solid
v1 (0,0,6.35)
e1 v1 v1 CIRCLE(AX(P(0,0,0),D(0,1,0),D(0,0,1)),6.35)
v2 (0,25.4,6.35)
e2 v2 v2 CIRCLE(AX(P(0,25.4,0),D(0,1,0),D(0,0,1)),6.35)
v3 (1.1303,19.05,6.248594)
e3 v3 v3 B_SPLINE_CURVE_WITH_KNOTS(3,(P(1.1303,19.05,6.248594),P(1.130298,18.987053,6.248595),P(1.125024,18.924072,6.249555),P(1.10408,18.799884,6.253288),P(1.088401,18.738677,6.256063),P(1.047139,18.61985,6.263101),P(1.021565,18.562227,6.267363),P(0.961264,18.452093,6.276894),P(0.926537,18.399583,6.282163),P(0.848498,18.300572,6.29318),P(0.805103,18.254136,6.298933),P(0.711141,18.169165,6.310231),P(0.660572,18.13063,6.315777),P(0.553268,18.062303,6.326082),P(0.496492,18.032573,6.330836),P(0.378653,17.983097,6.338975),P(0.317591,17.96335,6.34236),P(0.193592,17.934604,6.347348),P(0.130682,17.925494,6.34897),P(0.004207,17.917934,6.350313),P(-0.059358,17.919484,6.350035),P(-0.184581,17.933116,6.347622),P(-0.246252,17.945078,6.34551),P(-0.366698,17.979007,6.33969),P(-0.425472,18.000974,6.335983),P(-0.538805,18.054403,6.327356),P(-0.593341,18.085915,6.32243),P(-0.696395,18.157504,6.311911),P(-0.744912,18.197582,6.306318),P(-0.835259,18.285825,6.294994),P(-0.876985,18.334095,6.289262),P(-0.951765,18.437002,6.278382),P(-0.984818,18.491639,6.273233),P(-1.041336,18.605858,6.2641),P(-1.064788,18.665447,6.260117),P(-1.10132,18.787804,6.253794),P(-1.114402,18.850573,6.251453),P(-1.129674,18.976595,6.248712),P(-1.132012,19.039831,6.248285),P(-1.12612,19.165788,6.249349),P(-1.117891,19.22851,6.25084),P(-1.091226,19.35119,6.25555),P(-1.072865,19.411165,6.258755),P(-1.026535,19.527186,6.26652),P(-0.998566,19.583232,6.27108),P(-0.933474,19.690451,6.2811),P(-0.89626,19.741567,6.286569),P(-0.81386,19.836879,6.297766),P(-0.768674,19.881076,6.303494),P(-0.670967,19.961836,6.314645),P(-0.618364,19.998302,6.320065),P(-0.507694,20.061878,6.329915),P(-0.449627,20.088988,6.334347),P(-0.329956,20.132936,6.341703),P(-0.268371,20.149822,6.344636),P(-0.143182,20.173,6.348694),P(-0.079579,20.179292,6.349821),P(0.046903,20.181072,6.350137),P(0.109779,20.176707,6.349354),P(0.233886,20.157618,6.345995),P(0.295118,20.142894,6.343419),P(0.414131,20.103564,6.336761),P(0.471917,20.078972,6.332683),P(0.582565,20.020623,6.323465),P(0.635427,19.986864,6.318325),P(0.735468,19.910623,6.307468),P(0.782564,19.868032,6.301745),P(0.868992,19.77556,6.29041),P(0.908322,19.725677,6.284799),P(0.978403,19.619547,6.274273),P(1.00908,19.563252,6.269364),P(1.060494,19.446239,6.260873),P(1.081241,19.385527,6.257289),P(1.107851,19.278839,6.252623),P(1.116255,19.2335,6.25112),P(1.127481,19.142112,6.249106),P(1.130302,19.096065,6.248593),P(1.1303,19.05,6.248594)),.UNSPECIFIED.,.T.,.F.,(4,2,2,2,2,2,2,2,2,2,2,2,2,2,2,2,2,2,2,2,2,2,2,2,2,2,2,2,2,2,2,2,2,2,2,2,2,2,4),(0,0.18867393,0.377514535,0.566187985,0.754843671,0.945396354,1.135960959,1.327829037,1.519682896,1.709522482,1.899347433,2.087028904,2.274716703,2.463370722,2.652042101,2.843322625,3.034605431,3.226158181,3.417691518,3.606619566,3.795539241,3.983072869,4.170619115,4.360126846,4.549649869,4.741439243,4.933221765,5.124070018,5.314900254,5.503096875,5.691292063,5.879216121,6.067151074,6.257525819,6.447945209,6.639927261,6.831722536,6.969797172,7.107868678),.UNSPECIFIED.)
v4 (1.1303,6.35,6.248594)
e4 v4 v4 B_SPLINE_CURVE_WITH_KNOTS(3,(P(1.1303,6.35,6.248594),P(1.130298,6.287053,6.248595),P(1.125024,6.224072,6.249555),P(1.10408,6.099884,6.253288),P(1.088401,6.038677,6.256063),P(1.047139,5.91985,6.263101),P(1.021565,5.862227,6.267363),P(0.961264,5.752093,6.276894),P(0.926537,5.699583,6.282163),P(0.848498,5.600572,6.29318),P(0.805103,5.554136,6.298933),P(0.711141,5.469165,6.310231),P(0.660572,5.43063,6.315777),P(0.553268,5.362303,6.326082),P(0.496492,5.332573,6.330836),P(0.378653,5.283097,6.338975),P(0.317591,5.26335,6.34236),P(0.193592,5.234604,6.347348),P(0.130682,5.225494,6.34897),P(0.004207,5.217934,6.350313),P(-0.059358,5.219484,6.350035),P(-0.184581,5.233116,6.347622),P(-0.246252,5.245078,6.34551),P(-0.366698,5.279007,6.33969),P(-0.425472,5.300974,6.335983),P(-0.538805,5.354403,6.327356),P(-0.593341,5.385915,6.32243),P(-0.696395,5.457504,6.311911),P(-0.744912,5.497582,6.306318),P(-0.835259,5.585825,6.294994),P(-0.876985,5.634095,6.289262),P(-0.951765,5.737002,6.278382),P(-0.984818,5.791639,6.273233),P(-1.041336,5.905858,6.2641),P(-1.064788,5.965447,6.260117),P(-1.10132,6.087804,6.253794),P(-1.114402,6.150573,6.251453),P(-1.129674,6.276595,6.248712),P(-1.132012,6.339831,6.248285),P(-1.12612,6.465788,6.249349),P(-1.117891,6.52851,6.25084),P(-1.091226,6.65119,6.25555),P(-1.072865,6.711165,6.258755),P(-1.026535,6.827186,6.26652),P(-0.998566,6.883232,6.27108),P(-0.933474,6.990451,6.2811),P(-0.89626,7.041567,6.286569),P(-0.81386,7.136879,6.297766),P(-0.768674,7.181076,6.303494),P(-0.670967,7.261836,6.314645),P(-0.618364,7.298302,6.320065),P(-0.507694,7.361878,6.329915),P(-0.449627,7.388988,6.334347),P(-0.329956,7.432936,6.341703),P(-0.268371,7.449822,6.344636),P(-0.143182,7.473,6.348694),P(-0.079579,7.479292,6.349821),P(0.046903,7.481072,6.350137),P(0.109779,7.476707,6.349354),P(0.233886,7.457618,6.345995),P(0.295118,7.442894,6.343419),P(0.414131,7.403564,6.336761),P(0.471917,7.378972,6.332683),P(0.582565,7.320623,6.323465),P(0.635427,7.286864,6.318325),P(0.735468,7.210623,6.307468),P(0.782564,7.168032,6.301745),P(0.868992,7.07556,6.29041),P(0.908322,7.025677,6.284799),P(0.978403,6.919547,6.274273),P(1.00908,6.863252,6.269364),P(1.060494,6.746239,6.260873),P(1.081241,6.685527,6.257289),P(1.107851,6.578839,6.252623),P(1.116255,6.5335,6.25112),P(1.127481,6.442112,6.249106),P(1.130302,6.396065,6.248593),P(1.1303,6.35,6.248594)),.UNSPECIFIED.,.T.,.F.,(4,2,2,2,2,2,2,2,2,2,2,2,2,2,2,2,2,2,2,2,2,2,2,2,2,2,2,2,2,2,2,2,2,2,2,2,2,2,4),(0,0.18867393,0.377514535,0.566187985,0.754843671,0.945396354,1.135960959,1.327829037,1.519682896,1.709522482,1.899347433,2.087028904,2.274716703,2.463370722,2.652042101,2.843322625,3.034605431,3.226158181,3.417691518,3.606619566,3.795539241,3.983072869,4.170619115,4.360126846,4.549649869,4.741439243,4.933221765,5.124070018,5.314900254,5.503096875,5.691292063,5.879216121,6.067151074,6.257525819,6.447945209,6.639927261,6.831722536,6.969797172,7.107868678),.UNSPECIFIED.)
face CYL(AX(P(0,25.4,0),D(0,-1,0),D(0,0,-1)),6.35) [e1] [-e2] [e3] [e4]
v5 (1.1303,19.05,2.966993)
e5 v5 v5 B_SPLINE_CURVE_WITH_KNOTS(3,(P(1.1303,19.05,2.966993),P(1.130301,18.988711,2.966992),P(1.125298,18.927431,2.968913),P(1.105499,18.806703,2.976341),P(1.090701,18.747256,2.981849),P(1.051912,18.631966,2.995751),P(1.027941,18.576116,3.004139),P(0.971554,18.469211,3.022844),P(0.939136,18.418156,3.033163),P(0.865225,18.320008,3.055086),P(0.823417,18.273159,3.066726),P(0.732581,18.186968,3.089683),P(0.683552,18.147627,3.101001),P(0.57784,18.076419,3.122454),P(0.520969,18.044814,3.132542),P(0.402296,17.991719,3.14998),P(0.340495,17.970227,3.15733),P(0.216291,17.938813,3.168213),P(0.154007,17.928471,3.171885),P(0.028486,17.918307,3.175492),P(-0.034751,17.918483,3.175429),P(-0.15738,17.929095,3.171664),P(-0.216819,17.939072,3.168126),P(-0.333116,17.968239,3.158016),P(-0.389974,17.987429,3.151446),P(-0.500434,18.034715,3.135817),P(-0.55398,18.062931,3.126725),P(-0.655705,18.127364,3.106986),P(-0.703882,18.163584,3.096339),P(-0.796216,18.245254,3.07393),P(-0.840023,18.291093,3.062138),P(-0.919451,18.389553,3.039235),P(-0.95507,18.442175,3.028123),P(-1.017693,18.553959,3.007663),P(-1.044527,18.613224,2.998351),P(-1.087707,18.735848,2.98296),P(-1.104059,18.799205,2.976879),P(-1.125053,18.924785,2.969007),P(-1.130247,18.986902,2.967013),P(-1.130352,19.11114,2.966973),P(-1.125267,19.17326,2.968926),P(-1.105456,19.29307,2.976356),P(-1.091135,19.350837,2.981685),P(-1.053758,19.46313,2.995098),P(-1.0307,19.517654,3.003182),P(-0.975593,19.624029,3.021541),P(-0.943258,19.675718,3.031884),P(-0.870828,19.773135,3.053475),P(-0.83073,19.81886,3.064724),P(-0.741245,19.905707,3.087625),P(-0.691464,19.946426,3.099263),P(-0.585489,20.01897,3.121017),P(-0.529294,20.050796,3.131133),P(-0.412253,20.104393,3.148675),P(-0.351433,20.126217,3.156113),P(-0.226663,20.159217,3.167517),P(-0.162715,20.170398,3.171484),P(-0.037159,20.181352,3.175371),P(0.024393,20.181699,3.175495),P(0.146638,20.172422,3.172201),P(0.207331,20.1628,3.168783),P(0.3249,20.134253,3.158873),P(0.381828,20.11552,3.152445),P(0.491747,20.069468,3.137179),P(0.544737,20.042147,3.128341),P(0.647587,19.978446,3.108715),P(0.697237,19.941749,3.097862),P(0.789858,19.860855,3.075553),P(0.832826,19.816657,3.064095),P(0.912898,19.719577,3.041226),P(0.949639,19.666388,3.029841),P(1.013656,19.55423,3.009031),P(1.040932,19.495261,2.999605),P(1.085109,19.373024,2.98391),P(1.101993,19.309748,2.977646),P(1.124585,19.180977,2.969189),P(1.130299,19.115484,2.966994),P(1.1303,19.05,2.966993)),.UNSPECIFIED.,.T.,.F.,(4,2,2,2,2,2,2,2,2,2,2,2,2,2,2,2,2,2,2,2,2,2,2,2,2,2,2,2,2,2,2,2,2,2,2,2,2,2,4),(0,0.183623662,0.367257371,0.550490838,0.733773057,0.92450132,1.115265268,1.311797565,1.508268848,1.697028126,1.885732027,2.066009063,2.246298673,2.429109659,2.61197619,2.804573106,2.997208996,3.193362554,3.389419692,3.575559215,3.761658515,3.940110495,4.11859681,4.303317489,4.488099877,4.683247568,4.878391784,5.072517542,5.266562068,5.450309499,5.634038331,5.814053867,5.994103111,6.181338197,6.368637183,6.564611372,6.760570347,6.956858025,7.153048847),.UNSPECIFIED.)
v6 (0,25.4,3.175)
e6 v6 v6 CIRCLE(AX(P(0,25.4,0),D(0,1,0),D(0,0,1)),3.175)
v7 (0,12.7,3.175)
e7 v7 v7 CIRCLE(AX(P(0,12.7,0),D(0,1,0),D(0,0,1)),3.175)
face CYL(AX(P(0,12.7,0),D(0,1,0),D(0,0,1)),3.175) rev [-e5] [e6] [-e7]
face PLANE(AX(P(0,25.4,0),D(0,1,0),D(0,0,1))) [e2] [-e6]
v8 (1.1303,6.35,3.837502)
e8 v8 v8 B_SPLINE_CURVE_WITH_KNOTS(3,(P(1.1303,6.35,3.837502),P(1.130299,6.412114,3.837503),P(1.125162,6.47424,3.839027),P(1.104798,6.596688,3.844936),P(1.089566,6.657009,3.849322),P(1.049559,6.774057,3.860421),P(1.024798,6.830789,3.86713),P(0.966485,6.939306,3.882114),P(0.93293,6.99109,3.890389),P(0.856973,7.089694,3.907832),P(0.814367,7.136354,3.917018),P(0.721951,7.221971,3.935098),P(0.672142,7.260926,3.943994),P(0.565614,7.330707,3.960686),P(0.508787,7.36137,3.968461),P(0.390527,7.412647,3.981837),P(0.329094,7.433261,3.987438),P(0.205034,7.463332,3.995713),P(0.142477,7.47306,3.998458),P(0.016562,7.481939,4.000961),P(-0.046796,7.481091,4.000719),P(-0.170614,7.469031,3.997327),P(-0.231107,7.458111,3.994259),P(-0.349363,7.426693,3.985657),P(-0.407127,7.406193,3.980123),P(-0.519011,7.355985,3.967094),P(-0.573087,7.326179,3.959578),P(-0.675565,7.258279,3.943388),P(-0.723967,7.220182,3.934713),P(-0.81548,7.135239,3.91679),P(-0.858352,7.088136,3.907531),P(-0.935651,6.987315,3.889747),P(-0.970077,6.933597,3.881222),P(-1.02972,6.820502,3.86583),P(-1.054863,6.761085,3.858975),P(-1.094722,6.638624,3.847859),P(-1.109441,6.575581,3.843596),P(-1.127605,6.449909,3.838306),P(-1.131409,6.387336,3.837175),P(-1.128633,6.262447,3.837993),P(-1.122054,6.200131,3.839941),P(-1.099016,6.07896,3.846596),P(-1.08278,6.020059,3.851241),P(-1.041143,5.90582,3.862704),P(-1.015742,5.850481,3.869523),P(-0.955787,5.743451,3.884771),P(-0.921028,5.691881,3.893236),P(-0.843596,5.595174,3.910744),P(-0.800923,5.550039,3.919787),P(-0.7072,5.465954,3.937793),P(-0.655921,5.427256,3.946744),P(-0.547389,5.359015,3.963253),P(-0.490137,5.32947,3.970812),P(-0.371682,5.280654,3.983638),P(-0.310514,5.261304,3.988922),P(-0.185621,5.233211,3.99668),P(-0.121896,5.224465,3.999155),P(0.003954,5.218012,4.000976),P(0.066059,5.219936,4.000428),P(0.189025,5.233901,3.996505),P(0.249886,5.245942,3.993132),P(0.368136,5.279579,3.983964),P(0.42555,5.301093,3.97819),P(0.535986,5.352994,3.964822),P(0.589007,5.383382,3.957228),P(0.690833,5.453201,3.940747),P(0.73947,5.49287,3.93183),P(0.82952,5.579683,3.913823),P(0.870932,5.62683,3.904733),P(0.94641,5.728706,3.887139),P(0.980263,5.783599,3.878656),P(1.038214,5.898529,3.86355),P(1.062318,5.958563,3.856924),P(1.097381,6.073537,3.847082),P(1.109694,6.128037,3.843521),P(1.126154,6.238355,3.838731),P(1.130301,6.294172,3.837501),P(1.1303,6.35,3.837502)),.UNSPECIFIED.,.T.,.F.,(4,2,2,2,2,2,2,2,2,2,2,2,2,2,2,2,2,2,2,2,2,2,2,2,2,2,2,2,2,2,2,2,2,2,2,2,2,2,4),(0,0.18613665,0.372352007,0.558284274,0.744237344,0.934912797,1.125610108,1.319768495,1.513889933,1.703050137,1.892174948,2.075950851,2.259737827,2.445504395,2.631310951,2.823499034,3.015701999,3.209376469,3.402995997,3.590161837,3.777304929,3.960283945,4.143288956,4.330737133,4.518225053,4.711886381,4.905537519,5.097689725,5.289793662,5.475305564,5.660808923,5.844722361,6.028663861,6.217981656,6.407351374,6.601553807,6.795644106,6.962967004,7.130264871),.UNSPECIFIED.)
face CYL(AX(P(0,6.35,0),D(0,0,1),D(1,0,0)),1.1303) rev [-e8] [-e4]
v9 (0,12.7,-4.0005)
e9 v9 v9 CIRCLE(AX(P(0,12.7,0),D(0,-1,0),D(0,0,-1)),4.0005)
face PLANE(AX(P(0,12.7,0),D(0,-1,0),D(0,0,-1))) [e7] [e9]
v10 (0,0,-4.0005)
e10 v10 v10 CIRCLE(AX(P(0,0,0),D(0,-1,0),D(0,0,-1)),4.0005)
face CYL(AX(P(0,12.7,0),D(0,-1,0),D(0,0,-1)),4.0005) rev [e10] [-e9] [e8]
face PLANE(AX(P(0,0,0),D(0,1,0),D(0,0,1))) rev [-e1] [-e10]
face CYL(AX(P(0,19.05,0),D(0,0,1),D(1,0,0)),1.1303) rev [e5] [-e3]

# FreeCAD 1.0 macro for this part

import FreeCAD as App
import Part
import Sketcher

V = App.Vector
Q = App.Units.Quantity

doc = App.newDocument("Part")
body = doc.addObject("PartDesign::Body", "Body")

# Sketch on XZ plane
sketch1 = body.newObject("Sketcher::SketchObject", "Sketch")
sketch1.AttachmentSupport = (doc.getObject("XZ_Plane"), [""])
sketch1.MapMode = "FlatFace"
sketch1.addGeometry(Part.Circle(V(0, 0, 0), V(0, 0, 1), 6.35), False)
sketch1.addConstraint(Sketcher.Constraint("Coincident", 0, 3, -1, 1))
sketch1.addConstraint(Sketcher.Constraint("Diameter", 0, Q("0.5 in")))
pad1 = body.newObject("PartDesign::Pad", "Pad")
pad1.Profile = sketch1
pad1.Length = Q("1 in")
pad1.Reversed = True

# Sketch on XZ plane
sketch2 = body.newObject("Sketcher::SketchObject", "Sketch001")
sketch2.AttachmentSupport = (doc.getObject("XZ_Plane"), [""])
sketch2.MapMode = "FlatFace"
sketch2.addGeometry(Part.Circle(V(0, 0, 0), V(0, 0, 1), 4), False)
sketch2.addConstraint(Sketcher.Constraint("Coincident", 0, 3, -1, 1))
sketch2.addConstraint(Sketcher.Constraint("Diameter", 0, 8.0))
pocket1 = body.newObject("PartDesign::Pocket", "Pocket")
pocket1.Profile = sketch2
pocket1.Type = "TwoLengths"
pocket1.Length = 27.940768
pocket1.Length2 = Q("0.5 in")
pocket1.Reversed = True

# Sketch on XZ plane
sketch3 = body.newObject("Sketcher::SketchObject", "Sketch002")
sketch3.AttachmentSupport = (doc.getObject("XZ_Plane"), [""])
sketch3.MapMode = "FlatFace"
sketch3.addGeometry(Part.Circle(V(0, 0, 0), V(0, 0, 1), 4.0005), False)
sketch3.addConstraint(Sketcher.Constraint("Coincident", 0, 3, -1, 1))
sketch3.addConstraint(Sketcher.Constraint("Diameter", 0, Q("0.315 in")))
pocket2 = body.newObject("PartDesign::Pocket", "Pocket001")
pocket2.Profile = sketch3
pocket2.Length = Q("0.5 in")

# Sketch on XY plane
sketch4 = body.newObject("Sketcher::SketchObject", "Sketch003")
sketch4.AttachmentSupport = (doc.getObject("XY_Plane"), [""])
sketch4.MapMode = "FlatFace"
sketch4.AttachmentOffset = App.Placement(V(0, 0, 0.25 * 25.4), App.Rotation())
sketch4.addGeometry(Part.Circle(V(0, 6.35, 0), V(0, 0, 1), 1.1303), False)
sketch4.addGeometry(Part.Circle(V(0, 19.05, 0), V(0, 0, 1), 1.1303), False)
sketch4.addConstraint(Sketcher.Constraint("Equal", 0, 1))
sketch4.addConstraint(Sketcher.Constraint("PointOnObject", 0, 3, -2))
sketch4.addConstraint(Sketcher.Constraint("PointOnObject", 1, 3, -2))
sketch4.addConstraint(Sketcher.Constraint("Diameter", 0, Q("0.089 in")))
sketch4.addConstraint(Sketcher.Constraint("DistanceY", 0, 3, 1, 3, Q("0.5 in")))
sketch4.addConstraint(Sketcher.Constraint("DistanceY", -1, 1, 0, 3, Q("0.25 in")))
pocket3 = body.newObject("PartDesign::Pocket", "Pocket002")
pocket3.Profile = sketch4
pocket3.Length = Q("0.25 in")

# Sketch on XZ plane
sketch5 = body.newObject("Sketcher::SketchObject", "Sketch004")
sketch5.AttachmentSupport = (doc.getObject("XZ_Plane"), [""])
sketch5.MapMode = "FlatFace"
sketch5.AttachmentOffset = App.Placement(V(0, 0, -1 * 25.4), App.Rotation())
sketch5.addGeometry(Part.Circle(V(0, 0, 0), V(0, 0, 1), 3.175), False)
sketch5.addConstraint(Sketcher.Constraint("Coincident", 0, 3, -1, 1))
sketch5.addConstraint(Sketcher.Constraint("Diameter", 0, Q("0.25 in")))
pocket4 = body.newObject("PartDesign::Pocket", "Pocket003")
pocket4.Profile = sketch5
pocket4.Length = Q("0.5 in")
pocket4.Reversed = True

doc.recompute()
